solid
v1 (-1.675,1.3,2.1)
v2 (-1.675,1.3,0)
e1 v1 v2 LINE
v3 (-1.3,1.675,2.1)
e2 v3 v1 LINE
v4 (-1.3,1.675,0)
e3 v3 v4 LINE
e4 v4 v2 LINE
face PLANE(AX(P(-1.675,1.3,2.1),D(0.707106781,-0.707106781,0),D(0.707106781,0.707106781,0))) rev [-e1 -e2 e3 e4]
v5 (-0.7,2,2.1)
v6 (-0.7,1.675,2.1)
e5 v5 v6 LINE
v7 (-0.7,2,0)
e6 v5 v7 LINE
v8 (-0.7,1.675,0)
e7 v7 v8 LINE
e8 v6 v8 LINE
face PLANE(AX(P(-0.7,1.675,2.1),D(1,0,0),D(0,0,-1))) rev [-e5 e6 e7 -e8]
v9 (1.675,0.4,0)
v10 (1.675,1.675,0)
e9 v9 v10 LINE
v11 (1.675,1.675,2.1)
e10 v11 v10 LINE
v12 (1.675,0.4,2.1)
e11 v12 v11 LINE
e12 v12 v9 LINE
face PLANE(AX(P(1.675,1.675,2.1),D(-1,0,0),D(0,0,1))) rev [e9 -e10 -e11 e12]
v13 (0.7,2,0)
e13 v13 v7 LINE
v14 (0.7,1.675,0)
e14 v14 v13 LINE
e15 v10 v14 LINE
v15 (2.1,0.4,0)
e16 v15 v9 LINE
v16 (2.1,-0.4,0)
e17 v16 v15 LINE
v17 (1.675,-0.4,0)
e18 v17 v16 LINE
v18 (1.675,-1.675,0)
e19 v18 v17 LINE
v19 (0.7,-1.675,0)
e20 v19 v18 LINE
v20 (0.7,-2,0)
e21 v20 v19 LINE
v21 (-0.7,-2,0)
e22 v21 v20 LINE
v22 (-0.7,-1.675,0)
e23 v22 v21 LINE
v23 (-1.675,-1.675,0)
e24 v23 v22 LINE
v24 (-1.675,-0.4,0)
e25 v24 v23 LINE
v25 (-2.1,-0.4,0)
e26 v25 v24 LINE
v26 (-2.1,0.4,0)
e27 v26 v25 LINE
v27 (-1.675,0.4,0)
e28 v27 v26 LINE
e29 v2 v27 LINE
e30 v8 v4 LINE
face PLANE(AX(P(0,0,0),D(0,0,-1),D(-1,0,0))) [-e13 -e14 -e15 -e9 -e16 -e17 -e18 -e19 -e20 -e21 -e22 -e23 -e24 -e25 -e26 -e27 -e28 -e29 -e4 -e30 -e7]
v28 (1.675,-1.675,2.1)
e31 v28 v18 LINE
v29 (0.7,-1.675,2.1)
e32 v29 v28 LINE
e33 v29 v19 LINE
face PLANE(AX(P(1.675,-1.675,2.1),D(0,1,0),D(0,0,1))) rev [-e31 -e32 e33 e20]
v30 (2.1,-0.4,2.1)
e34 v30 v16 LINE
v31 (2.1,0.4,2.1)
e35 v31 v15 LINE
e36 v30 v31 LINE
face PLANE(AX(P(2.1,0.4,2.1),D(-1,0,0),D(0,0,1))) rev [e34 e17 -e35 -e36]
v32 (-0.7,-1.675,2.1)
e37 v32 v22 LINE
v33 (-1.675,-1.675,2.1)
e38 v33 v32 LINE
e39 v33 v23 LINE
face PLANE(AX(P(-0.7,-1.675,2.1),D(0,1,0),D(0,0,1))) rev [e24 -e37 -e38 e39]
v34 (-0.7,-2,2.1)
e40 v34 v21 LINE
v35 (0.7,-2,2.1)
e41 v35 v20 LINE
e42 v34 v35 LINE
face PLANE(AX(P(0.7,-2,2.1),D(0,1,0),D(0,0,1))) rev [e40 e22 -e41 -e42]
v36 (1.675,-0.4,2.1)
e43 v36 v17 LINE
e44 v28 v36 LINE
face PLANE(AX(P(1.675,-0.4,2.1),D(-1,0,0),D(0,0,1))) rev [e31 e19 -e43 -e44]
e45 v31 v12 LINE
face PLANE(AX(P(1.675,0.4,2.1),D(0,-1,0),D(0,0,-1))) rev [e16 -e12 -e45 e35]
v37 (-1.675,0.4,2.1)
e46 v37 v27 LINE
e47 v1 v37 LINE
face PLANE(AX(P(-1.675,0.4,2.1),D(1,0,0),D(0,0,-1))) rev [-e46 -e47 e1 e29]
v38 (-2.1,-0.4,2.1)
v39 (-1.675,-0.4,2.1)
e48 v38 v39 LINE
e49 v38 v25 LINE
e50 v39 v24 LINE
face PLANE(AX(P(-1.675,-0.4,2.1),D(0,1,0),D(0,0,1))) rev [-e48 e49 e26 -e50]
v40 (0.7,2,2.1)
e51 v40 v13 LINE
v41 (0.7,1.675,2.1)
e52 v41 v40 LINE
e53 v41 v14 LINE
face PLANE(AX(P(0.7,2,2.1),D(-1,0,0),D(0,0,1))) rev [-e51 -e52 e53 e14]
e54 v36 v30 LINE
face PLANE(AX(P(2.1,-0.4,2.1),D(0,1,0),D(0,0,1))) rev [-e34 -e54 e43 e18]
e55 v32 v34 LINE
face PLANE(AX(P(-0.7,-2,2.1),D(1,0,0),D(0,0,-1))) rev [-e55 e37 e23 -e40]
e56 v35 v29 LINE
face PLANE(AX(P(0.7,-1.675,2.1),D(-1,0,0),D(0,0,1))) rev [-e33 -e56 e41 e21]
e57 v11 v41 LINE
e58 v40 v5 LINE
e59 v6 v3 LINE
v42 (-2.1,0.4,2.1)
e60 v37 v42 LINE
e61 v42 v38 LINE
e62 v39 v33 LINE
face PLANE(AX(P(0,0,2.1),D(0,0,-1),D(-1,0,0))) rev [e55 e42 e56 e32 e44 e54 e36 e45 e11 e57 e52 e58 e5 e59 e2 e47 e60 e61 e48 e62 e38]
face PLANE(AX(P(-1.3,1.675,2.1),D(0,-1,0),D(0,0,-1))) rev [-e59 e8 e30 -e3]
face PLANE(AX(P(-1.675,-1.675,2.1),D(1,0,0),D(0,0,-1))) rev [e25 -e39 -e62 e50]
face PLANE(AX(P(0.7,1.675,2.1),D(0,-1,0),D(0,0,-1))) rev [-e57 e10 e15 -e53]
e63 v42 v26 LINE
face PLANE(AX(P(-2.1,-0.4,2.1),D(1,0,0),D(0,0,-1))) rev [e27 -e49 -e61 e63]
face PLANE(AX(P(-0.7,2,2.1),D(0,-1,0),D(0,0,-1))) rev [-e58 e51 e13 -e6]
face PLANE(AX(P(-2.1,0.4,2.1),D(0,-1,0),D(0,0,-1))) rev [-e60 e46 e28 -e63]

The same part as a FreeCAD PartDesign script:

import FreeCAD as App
import Part
import Sketcher
from FreeCAD import Vector
Q = App.Units.Quantity

doc = App.newDocument("Part")
body = doc.addObject("PartDesign::Body", "Body")

# Sketch on XY plane
sketch1 = doc.addObject("Sketcher::SketchObject", "Sketch")
body.addObject(sketch1)
sketch1.AttachmentSupport = (doc.XY_Plane, [""])
sketch1.MapMode = "FlatFace"
sketch1.addGeometry(Part.LineSegment(Vector(0.7, 1.68, 0), Vector(0.7, 2, 0)), False)
sketch1.addGeometry(Part.LineSegment(Vector(0.7, 2, 0), Vector(-0.7, 2, 0)), False)
sketch1.addGeometry(Part.LineSegment(Vector(-0.7, 2, 0), Vector(-0.7, 1.68, 0)), False)
sketch1.addGeometry(Part.LineSegment(Vector(-0.7, 1.68, 0), Vector(-1.3, 1.68, 0)), False)
sketch1.addGeometry(Part.LineSegment(Vector(-1.3, 1.68, 0), Vector(-1.68, 1.3, 0)), False)
sketch1.addGeometry(Part.LineSegment(Vector(-1.68, 1.3, 0), Vector(-1.68, 0.4, 0)), False)
sketch1.addGeometry(Part.LineSegment(Vector(-1.68, 0.4, 0), Vector(-2.1, 0.4, 0)), False)
sketch1.addGeometry(Part.LineSegment(Vector(-2.1, 0.4, 0), Vector(-2.1, -0.4, 0)), False)
sketch1.addGeometry(Part.LineSegment(Vector(-2.1, -0.4, 0), Vector(-1.68, -0.4, 0)), False)
sketch1.addGeometry(Part.LineSegment(Vector(-1.68, -0.4, 0), Vector(-1.68, -1.68, 0)), False)
sketch1.addGeometry(Part.LineSegment(Vector(-1.68, -1.68, 0), Vector(-0.7, -1.68, 0)), False)
sketch1.addGeometry(Part.LineSegment(Vector(-0.7, -1.68, 0), Vector(-0.7, -2, 0)), False)
sketch1.addGeometry(Part.LineSegment(Vector(-0.7, -2, 0), Vector(0.7, -2, 0)), False)
sketch1.addGeometry(Part.LineSegment(Vector(0.7, -2, 0), Vector(0.7, -1.68, 0)), False)
sketch1.addGeometry(Part.LineSegment(Vector(0.7, -1.68, 0), Vector(1.68, -1.68, 0)), False)
sketch1.addGeometry(Part.LineSegment(Vector(1.68, -1.68, 0), Vector(1.68, -0.4, 0)), False)
sketch1.addGeometry(Part.LineSegment(Vector(1.68, -0.4, 0), Vector(2.1, -0.4, 0)), False)
sketch1.addGeometry(Part.LineSegment(Vector(2.1, -0.4, 0), Vector(2.1, 0.4, 0)), False)
sketch1.addGeometry(Part.LineSegment(Vector(2.1, 0.4, 0), Vector(1.68, 0.4, 0)), False)
sketch1.addGeometry(Part.LineSegment(Vector(1.68, 0.4, 0), Vector(1.68, 1.68, 0)), False)
sketch1.addGeometry(Part.LineSegment(Vector(1.68, 1.68, 0), Vector(0.7, 1.68, 0)), False)
sketch1.addConstraint(Sketcher.Constraint("Coincident", 0, 2, 1, 1))
sketch1.addConstraint(Sketcher.Constraint("Coincident", 1, 2, 2, 1))
sketch1.addConstraint(Sketcher.Constraint("Coincident", 2, 2, 3, 1))
sketch1.addConstraint(Sketcher.Constraint("Coincident", 3, 2, 4, 1))
sketch1.addConstraint(Sketcher.Constraint("Coincident", 4, 2, 5, 1))
sketch1.addConstraint(Sketcher.Constraint("Coincident", 5, 2, 6, 1))
sketch1.addConstraint(Sketcher.Constraint("Coincident", 6, 2, 7, 1))
sketch1.addConstraint(Sketcher.Constraint("Coincident", 7, 2, 8, 1))
sketch1.addConstraint(Sketcher.Constraint("Coincident", 8, 2, 9, 1))
sketch1.addConstraint(Sketcher.Constraint("Coincident", 9, 2, 10, 1))
sketch1.addConstraint(Sketcher.Constraint("Coincident", 10, 2, 11, 1))
sketch1.addConstraint(Sketcher.Constraint("Coincident", 11, 2, 12, 1))
sketch1.addConstraint(Sketcher.Constraint("Coincident", 12, 2, 13, 1))
sketch1.addConstraint(Sketcher.Constraint("Coincident", 13, 2, 14, 1))
sketch1.addConstraint(Sketcher.Constraint("Coincident", 14, 2, 15, 1))
sketch1.addConstraint(Sketcher.Constraint("Coincident", 15, 2, 16, 1))
sketch1.addConstraint(Sketcher.Constraint("Coincident", 16, 2, 17, 1))
sketch1.addConstraint(Sketcher.Constraint("Coincident", 17, 2, 18, 1))
sketch1.addConstraint(Sketcher.Constraint("Coincident", 18, 2, 19, 1))
sketch1.addConstraint(Sketcher.Constraint("Coincident", 19, 2, 20, 1))
sketch1.addConstraint(Sketcher.Constraint("Coincident", 20, 2, 0, 1))
sketch1.addConstraint(Sketcher.Constraint("Vertical", 0))
sketch1.addConstraint(Sketcher.Constraint("Horizontal", 1))
sketch1.addConstraint(Sketcher.Constraint("Vertical", 2))
sketch1.addConstraint(Sketcher.Constraint("Horizontal", 3))
sketch1.addConstraint(Sketcher.Constraint("Vertical", 5))
sketch1.addConstraint(Sketcher.Constraint("Horizontal", 6))
sketch1.addConstraint(Sketcher.Constraint("Vertical", 7))
sketch1.addConstraint(Sketcher.Constraint("Horizontal", 8))
sketch1.addConstraint(Sketcher.Constraint("Vertical", 9))
sketch1.addConstraint(Sketcher.Constraint("Horizontal", 10))
sketch1.addConstraint(Sketcher.Constraint("Vertical", 11))
sketch1.addConstraint(Sketcher.Constraint("Horizontal", 12))
sketch1.addConstraint(Sketcher.Constraint("Vertical", 13))
sketch1.addConstraint(Sketcher.Constraint("Horizontal", 14))
sketch1.addConstraint(Sketcher.Constraint("Vertical", 15))
sketch1.addConstraint(Sketcher.Constraint("Horizontal", 16))
sketch1.addConstraint(Sketcher.Constraint("Vertical", 17))
sketch1.addConstraint(Sketcher.Constraint("Horizontal", 18))
sketch1.addConstraint(Sketcher.Constraint("Vertical", 19))
sketch1.addConstraint(Sketcher.Constraint("Horizontal", 20))
sketch1.addConstraint(Sketcher.Constraint("Symmetric", 0, 2, 11, 2, -1, 1))
sketch1.addConstraint(Sketcher.Constraint("Symmetric", 2, 2, 13, 2, -1, 1))
sketch1.addConstraint(Sketcher.Constraint("Symmetric", 5, 2, 15, 2, -1, 1))
sketch1.addConstraint(Sketcher.Constraint("Symmetric", 7, 2, 17, 2, -1, 1))
sketch1.addConstraint(Sketcher.Constraint("Symmetric", 9, 2, 19, 2, -1, 1))
sketch1.addConstraint(Sketcher.Constraint("Symmetric", 10, 2, 13, 2, -2))
sketch1.addConstraint(Sketcher.Constraint("Symmetric", 8, 2, 15, 2, -2))
sketch1.addConstraint(Sketcher.Constraint("Angle", 4, Q("-135 deg")))
sketch1.addConstraint(Sketcher.Constraint("DistanceX", 1, 2, 1, 1, Q("1.4 mm")))
sketch1.addConstraint(Sketcher.Constraint("DistanceX", 3, 2, 3, 1, Q("0.6 mm")))
sketch1.addConstraint(Sketcher.Constraint("DistanceY", 5, 2, 5, 1, Q("0.9 mm")))
sketch1.addConstraint(Sketcher.Constraint("DistanceY", 7, 2, 7, 1, Q("0.8 mm")))
sketch1.addConstraint(Sketcher.Constraint("DistanceY", -1, 1, 0, 2, Q("2 mm")))
sketch1.addConstraint(Sketcher.Constraint("DistanceX", 6, 2, -1, 1, Q("2.1 mm")))
sketch1.addConstraint(Sketcher.Constraint("DistanceX", 6, 2, 6, 1, Q("0.425 mm")))
pad1 = doc.addObject("PartDesign::Pad", "Pad")
body.addObject(pad1)
pad1.Profile = sketch1
pad1.Length = 2.1

doc.recompute()
